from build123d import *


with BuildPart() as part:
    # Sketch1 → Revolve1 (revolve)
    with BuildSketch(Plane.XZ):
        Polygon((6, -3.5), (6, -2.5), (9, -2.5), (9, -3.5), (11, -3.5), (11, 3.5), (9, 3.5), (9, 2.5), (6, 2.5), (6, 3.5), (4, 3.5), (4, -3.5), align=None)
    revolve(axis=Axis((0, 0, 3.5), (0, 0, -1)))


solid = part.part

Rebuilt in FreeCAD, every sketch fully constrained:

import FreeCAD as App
import Part
import Sketcher
from FreeCAD import Vector
Q = App.Units.Quantity

doc = App.newDocument("Part")
params = doc.addObject("Spreadsheet::Sheet", "Params")
for row, (alias, value) in enumerate([
    ("sketch1_width", "3 mm"),
    ("sketch1_width2", "2 mm"),
    ("sketch1_height", "1 mm"),
    ("sketch1_height2", "7 mm"),
    ("revolution_angle", "360 deg"),
], start=1):
    params.set(f"A{row}", alias)
    params.set(f"B{row}", "=" + value)
    params.setAlias(f"B{row}", alias)

body = doc.addObject("PartDesign::Body", "Body")

# Sketch on XZ plane
sketch1 = body.newObject("Sketcher::SketchObject", "Sketch")
sketch1.AttachmentSupport = (doc.getObject("XZ_Plane"), [""])
sketch1.MapMode = "FlatFace"
sketch1.addGeometry([
    Part.LineSegment(Vector(6, -3.5, 0), Vector(6, -2.5, 0)),  # 0
    Part.LineSegment(Vector(6, -2.5, 0), Vector(9, -2.5, 0)),  # 1
    Part.LineSegment(Vector(9, -2.5, 0), Vector(9, -3.5, 0)),  # 2
    Part.LineSegment(Vector(9, -3.5, 0), Vector(11, -3.5, 0)),  # 3
    Part.LineSegment(Vector(11, -3.5, 0), Vector(11, 3.5, 0)),  # 4
    Part.LineSegment(Vector(11, 3.5, 0), Vector(9, 3.5, 0)),  # 5
    Part.LineSegment(Vector(9, 3.5, 0), Vector(9, 2.5, 0)),  # 6
    Part.LineSegment(Vector(9, 2.5, 0), Vector(6, 2.5, 0)),  # 7
    Part.LineSegment(Vector(6, 2.5, 0), Vector(6, 3.5, 0)),  # 8
    Part.LineSegment(Vector(6, 3.5, 0), Vector(4, 3.5, 0)),  # 9
    Part.LineSegment(Vector(4, 3.5, 0), Vector(4, -3.5, 0)),  # 10
    Part.LineSegment(Vector(4, -3.5, 0), Vector(6, -3.5, 0)),  # 11
], False)
sketch1.addConstraint([
    Sketcher.Constraint("Coincident", 0, 2, 1, 1),
    Sketcher.Constraint("Coincident", 1, 2, 2, 1),
    Sketcher.Constraint("Coincident", 2, 2, 3, 1),
    Sketcher.Constraint("Coincident", 3, 2, 4, 1),
    Sketcher.Constraint("Coincident", 4, 2, 5, 1),
    Sketcher.Constraint("Coincident", 5, 2, 6, 1),
    Sketcher.Constraint("Coincident", 6, 2, 7, 1),
    Sketcher.Constraint("Coincident", 7, 2, 8, 1),
    Sketcher.Constraint("Coincident", 8, 2, 9, 1),
    Sketcher.Constraint("Coincident", 9, 2, 10, 1),
    Sketcher.Constraint("Coincident", 10, 2, 11, 1),
    Sketcher.Constraint("Coincident", 11, 2, 0, 1),
    Sketcher.Constraint("Vertical", 0),
    Sketcher.Constraint("Horizontal", 1),
    Sketcher.Constraint("Vertical", 2),
    Sketcher.Constraint("Horizontal", 3),
    Sketcher.Constraint("Vertical", 4),
    Sketcher.Constraint("Horizontal", 5),
    Sketcher.Constraint("Vertical", 6),
    Sketcher.Constraint("Horizontal", 7),
    Sketcher.Constraint("Vertical", 8),
    Sketcher.Constraint("Horizontal", 9),
    Sketcher.Constraint("Vertical", 10),
    Sketcher.Constraint("Horizontal", 11),
    Sketcher.Constraint("Symmetric", 2, 2, 5, 2, -1),
    Sketcher.Constraint("Symmetric", 0, 2, 7, 2, -1),
    Sketcher.Constraint("Horizontal", 5, 2, 8, 2),
    Sketcher.Constraint("Horizontal", 3, 2, 10, 2),
    Sketcher.Constraint("Equal", 5, 9),
    Sketcher.Constraint("DistanceX", 1, 1, 1, 2, Q("3 mm")),
    Sketcher.Constraint("DistanceX", 3, 1, 3, 2, Q("2 mm")),
    Sketcher.Constraint("DistanceY", 0, 1, 0, 2, Q("1 mm")),
    Sketcher.Constraint("DistanceY", 4, 1, 4, 2, Q("7 mm")),
    Sketcher.Constraint("DistanceX", -1, 1, 0, 2, Q("6 mm")),
])
sketch1.setExpression("Constraints[29]", "Params.sketch1_width")
sketch1.setExpression("Constraints[30]", "Params.sketch1_width2")
sketch1.setExpression("Constraints[31]", "Params.sketch1_height")
sketch1.setExpression("Constraints[32]", "Params.sketch1_height2")
revolution = body.newObject("PartDesign::Revolution", "Revolution")
revolution.Profile = sketch1
revolution.ReferenceAxis = (sketch1, ["V_Axis"])
revolution.setExpression("Angle", "Params.revolution_angle")

doc.recompute()
